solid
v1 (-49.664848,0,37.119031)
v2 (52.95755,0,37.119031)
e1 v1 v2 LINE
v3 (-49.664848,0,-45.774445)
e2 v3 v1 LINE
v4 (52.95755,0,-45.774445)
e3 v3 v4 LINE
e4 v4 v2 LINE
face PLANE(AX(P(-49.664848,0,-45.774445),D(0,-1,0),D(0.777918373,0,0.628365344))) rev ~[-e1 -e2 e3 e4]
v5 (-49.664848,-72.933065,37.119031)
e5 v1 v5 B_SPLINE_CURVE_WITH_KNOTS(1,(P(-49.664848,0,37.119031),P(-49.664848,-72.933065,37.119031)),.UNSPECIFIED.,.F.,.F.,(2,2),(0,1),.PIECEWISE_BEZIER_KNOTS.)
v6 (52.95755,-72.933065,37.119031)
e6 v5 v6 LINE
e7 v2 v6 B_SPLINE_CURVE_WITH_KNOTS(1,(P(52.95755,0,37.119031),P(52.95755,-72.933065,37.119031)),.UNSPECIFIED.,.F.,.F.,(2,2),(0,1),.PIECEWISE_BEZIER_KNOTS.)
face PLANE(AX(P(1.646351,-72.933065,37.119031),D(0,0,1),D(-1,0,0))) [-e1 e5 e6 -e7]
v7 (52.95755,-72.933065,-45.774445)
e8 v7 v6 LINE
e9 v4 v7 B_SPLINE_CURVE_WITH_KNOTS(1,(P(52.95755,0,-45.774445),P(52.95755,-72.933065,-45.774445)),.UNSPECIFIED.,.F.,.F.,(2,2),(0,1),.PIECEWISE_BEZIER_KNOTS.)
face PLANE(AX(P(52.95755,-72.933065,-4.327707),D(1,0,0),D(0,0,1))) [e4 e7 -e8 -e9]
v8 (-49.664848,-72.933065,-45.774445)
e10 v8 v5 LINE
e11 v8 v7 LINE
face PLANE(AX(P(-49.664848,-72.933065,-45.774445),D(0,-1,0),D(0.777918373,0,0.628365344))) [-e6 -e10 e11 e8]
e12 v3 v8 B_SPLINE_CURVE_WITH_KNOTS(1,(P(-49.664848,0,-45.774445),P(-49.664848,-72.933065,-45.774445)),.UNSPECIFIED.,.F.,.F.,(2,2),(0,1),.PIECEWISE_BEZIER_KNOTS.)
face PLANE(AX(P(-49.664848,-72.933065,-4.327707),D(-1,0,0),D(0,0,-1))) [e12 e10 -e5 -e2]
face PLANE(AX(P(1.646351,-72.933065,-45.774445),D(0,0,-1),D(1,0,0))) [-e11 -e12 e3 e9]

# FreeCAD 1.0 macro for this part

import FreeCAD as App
import Part
import Sketcher
Q = App.Units.Quantity

doc = App.newDocument("Part")
body = doc.addObject("PartDesign::Body", "Body")

sketch1 = body.newObject("Sketcher::SketchObject", "Sketch")
sketch1.AttachmentSupport = (doc.getObject("XZ_Plane"), [""])
sketch1.MapMode = "FlatFace"
sketch1.addGeometry([
    Part.LineSegment(App.Vector(-49.664848, 37.119031, 0), App.Vector(-49.664848, -45.774445, 0)),
    Part.LineSegment(App.Vector(-49.664848, -45.774445, 0), App.Vector(52.95755, -45.774445, 0)),
    Part.LineSegment(App.Vector(52.95755, -45.774445, 0), App.Vector(52.95755, 37.119031, 0)),
    Part.LineSegment(App.Vector(52.95755, 37.119031, 0), App.Vector(-49.664848, 37.119031, 0)),
], False)
sketch1.addConstraint([
    Sketcher.Constraint("Coincident", 0, 2, 1, 1),
    Sketcher.Constraint("Coincident", 1, 2, 2, 1),
    Sketcher.Constraint("Coincident", 2, 2, 3, 1),
    Sketcher.Constraint("Coincident", 3, 2, 0, 1),
    Sketcher.Constraint("Vertical", 0),
    Sketcher.Constraint("Horizontal", 1),
    Sketcher.Constraint("Vertical", 2),
    Sketcher.Constraint("Horizontal", 3),
    Sketcher.Constraint("DistanceX", 1, 1, 1, 2, Q("102.622397 mm")),
    Sketcher.Constraint("DistanceY", 0, 2, 0, 1, Q("82.893476 mm")),
    Sketcher.Constraint("DistanceX", -1, 1, 1, 2, Q("52.95755 mm")),
    Sketcher.Constraint("DistanceY", -1, 1, 2, 2, Q("37.119031 mm")),
])

sketch2 = body.newObject("Sketcher::SketchObject", "Sketch001")
sketch2.AttachmentSupport = (doc.getObject("XZ_Plane"), [""])
sketch2.MapMode = "FlatFace"
sketch2.AttachmentOffset = App.Placement(App.Vector(0, 0, 72.933065), App.Rotation())
sketch2.addGeometry([
    Part.LineSegment(App.Vector(-49.664848, 37.119031, 0), App.Vector(-49.664848, -45.774445, 0)),
    Part.LineSegment(App.Vector(-49.664848, -45.774445, 0), App.Vector(52.95755, -45.774445, 0)),
    Part.LineSegment(App.Vector(52.95755, -45.774445, 0), App.Vector(52.95755, 37.119031, 0)),
    Part.LineSegment(App.Vector(52.95755, 37.119031, 0), App.Vector(-49.664848, 37.119031, 0)),
], False)
sketch2.addConstraint([
    Sketcher.Constraint("Coincident", 0, 2, 1, 1),
    Sketcher.Constraint("Coincident", 1, 2, 2, 1),
    Sketcher.Constraint("Coincident", 2, 2, 3, 1),
    Sketcher.Constraint("Coincident", 3, 2, 0, 1),
    Sketcher.Constraint("Vertical", 0),
    Sketcher.Constraint("Horizontal", 1),
    Sketcher.Constraint("Vertical", 2),
    Sketcher.Constraint("Horizontal", 3),
    Sketcher.Constraint("DistanceX", 1, 1, 1, 2, Q("102.622397 mm")),
    Sketcher.Constraint("DistanceY", 0, 2, 0, 1, Q("82.893476 mm")),
    Sketcher.Constraint("DistanceX", -1, 1, 1, 2, Q("52.95755 mm")),
    Sketcher.Constraint("DistanceY", -1, 1, 2, 2, Q("37.119031 mm")),
])

additiveloft = body.newObject("PartDesign::AdditiveLoft", "AdditiveLoft")
additiveloft.Profile = sketch1
additiveloft.Sections = [sketch2]

doc.recompute()
